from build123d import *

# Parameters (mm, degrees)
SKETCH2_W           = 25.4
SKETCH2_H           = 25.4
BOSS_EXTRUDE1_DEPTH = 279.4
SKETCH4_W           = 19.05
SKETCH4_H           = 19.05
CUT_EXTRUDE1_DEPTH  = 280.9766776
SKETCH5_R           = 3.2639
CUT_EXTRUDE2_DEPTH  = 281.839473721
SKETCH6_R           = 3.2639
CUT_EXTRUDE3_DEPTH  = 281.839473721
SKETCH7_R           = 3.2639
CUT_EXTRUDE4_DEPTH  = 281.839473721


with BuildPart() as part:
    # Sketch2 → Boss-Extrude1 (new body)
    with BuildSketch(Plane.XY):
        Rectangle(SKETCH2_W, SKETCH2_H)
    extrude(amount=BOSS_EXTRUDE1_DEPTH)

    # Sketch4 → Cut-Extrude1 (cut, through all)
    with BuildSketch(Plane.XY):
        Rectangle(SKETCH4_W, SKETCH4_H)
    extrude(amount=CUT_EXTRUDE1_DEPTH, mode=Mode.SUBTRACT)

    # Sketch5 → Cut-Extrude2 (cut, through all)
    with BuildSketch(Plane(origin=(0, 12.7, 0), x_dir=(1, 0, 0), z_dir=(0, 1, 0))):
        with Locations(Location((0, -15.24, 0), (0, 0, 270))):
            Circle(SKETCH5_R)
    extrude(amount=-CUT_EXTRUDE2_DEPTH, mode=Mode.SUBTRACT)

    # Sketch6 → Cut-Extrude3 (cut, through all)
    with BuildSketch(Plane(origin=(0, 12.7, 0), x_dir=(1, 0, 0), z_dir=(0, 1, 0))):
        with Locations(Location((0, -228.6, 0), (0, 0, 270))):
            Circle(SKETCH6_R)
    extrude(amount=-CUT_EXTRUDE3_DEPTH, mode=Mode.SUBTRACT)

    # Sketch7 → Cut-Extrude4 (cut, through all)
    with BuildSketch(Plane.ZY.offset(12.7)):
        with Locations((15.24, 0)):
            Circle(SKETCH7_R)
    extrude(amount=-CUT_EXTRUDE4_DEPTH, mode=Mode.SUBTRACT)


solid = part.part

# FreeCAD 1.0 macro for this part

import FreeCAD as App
import Part
import Sketcher
from FreeCAD import Vector
Q = App.Units.Quantity


def add_polygon(sketch, points):
    """Adds a closed chain of lines whose ends are joined by coincident constraints."""
    first, n = sketch.GeometryCount, len(points)
    for a, b in zip(points, points[1:] + points[:1]):
        sketch.addGeometry(Part.LineSegment(App.Vector(*a, 0), App.Vector(*b, 0)), False)
    for i in range(n):
        sketch.addConstraint(Sketcher.Constraint("Coincident", first + i, 2, first + (i + 1) % n, 1))

doc = App.newDocument("Part")
body = doc.addObject("PartDesign::Body", "Body")

sketch1 = doc.addObject("Sketcher::SketchObject", "Sketch")
body.addObject(sketch1)
sketch1.AttachmentSupport = (doc.XY_Plane, [""])
sketch1.MapMode = "FlatFace"
add_polygon(sketch1, [(-13, 13), (-13, -13), (13, -13), (13, 13)])
sketch1.addConstraint(Sketcher.Constraint("Vertical", 0))
sketch1.addConstraint(Sketcher.Constraint("Horizontal", 1))
sketch1.addConstraint(Sketcher.Constraint("Vertical", 2))
sketch1.addConstraint(Sketcher.Constraint("Horizontal", 3))
sketch1.addConstraint(Sketcher.Constraint("Symmetric", 0, 2, 2, 2, -1, 1))
sketch1.addConstraint(Sketcher.Constraint("Equal", 3, 0))
sketch1.addConstraint(Sketcher.Constraint("DistanceX", 1, 1, 1, 2, Q("1 in")))
pad1 = doc.addObject("PartDesign::Pad", "Pad")
body.addObject(pad1)
pad1.Profile = sketch1
pad1.Length = Q("11 in")

sketch2 = doc.addObject("Sketcher::SketchObject", "Sketch001")
body.addObject(sketch2)
sketch2.AttachmentSupport = (doc.XY_Plane, [""])
sketch2.MapMode = "FlatFace"
add_polygon(sketch2, [(-10, 10), (-10, -10), (10, -10), (10, 10)])
sketch2.addConstraint(Sketcher.Constraint("Vertical", 0))
sketch2.addConstraint(Sketcher.Constraint("Horizontal", 1))
sketch2.addConstraint(Sketcher.Constraint("Vertical", 2))
sketch2.addConstraint(Sketcher.Constraint("Horizontal", 3))
sketch2.addConstraint(Sketcher.Constraint("Symmetric", 0, 2, 2, 2, -1, 1))
sketch2.addConstraint(Sketcher.Constraint("Equal", 3, 0))
sketch2.addConstraint(Sketcher.Constraint("DistanceX", 1, 1, 1, 2, Q("0.75 in")))
pocket1 = doc.addObject("PartDesign::Pocket", "Pocket")
body.addObject(pocket1)
pocket1.Profile = sketch2
pocket1.Type = "ThroughAll"
pocket1.Reversed = True

sketch3 = doc.addObject("Sketcher::SketchObject", "Sketch002")
body.addObject(sketch3)
sketch3.AttachmentSupport = (doc.XZ_Plane, [""])
sketch3.MapMode = "FlatFace"
sketch3.AttachmentOffset = App.Placement(Vector(0, 0, -0.5 * 25.4), App.Rotation())
sketch3.addGeometry(Part.Circle(Vector(0, 15.2, 0), Vector(0, 0, 1), 3.3), False)
sketch3.addConstraint(Sketcher.Constraint("PointOnObject", 0, 3, -2))
sketch3.addConstraint(Sketcher.Constraint("Diameter", 0, Q("0.257 in")))
sketch3.addConstraint(Sketcher.Constraint("DistanceY", -1, 1, 0, 3, Q("0.6 in")))
pocket2 = doc.addObject("PartDesign::Pocket", "Pocket001")
body.addObject(pocket2)
pocket2.Profile = sketch3
pocket2.Type = "ThroughAll"
pocket2.Reversed = True

sketch4 = doc.addObject("Sketcher::SketchObject", "Sketch003")
body.addObject(sketch4)
sketch4.AttachmentSupport = (doc.XZ_Plane, [""])
sketch4.MapMode = "FlatFace"
sketch4.AttachmentOffset = App.Placement(Vector(0, 0, -0.5 * 25.4), App.Rotation())
sketch4.addGeometry(Part.Circle(Vector(0, 228.6, 0), Vector(0, 0, 1), 3.3), False)
sketch4.addConstraint(Sketcher.Constraint("PointOnObject", 0, 3, -2))
sketch4.addConstraint(Sketcher.Constraint("Diameter", 0, Q("0.257 in")))
sketch4.addConstraint(Sketcher.Constraint("DistanceY", -1, 1, 0, 3, Q("9 in")))
pocket3 = doc.addObject("PartDesign::Pocket", "Pocket002")
body.addObject(pocket3)
pocket3.Profile = sketch4
pocket3.Type = "ThroughAll"
pocket3.Reversed = True

sketch5 = doc.addObject("Sketcher::SketchObject", "Sketch004")
body.addObject(sketch5)
sketch5.AttachmentSupport = (doc.YZ_Plane, [""])
sketch5.MapMode = "FlatFace"
sketch5.AttachmentOffset = App.Placement(Vector(0, 0, -0.5 * 25.4), App.Rotation())
sketch5.addGeometry(Part.Circle(Vector(0, 15.2, 0), Vector(0, 0, 1), 3.3), False)
sketch5.addConstraint(Sketcher.Constraint("PointOnObject", 0, 3, -2))
sketch5.addConstraint(Sketcher.Constraint("Diameter", 0, Q("0.257 in")))
sketch5.addConstraint(Sketcher.Constraint("DistanceY", -1, 1, 0, 3, Q("0.6 in")))
pocket4 = doc.addObject("PartDesign::Pocket", "Pocket003")
body.addObject(pocket4)
pocket4.Profile = sketch5
pocket4.Type = "ThroughAll"
pocket4.Reversed = True

doc.recompute()
